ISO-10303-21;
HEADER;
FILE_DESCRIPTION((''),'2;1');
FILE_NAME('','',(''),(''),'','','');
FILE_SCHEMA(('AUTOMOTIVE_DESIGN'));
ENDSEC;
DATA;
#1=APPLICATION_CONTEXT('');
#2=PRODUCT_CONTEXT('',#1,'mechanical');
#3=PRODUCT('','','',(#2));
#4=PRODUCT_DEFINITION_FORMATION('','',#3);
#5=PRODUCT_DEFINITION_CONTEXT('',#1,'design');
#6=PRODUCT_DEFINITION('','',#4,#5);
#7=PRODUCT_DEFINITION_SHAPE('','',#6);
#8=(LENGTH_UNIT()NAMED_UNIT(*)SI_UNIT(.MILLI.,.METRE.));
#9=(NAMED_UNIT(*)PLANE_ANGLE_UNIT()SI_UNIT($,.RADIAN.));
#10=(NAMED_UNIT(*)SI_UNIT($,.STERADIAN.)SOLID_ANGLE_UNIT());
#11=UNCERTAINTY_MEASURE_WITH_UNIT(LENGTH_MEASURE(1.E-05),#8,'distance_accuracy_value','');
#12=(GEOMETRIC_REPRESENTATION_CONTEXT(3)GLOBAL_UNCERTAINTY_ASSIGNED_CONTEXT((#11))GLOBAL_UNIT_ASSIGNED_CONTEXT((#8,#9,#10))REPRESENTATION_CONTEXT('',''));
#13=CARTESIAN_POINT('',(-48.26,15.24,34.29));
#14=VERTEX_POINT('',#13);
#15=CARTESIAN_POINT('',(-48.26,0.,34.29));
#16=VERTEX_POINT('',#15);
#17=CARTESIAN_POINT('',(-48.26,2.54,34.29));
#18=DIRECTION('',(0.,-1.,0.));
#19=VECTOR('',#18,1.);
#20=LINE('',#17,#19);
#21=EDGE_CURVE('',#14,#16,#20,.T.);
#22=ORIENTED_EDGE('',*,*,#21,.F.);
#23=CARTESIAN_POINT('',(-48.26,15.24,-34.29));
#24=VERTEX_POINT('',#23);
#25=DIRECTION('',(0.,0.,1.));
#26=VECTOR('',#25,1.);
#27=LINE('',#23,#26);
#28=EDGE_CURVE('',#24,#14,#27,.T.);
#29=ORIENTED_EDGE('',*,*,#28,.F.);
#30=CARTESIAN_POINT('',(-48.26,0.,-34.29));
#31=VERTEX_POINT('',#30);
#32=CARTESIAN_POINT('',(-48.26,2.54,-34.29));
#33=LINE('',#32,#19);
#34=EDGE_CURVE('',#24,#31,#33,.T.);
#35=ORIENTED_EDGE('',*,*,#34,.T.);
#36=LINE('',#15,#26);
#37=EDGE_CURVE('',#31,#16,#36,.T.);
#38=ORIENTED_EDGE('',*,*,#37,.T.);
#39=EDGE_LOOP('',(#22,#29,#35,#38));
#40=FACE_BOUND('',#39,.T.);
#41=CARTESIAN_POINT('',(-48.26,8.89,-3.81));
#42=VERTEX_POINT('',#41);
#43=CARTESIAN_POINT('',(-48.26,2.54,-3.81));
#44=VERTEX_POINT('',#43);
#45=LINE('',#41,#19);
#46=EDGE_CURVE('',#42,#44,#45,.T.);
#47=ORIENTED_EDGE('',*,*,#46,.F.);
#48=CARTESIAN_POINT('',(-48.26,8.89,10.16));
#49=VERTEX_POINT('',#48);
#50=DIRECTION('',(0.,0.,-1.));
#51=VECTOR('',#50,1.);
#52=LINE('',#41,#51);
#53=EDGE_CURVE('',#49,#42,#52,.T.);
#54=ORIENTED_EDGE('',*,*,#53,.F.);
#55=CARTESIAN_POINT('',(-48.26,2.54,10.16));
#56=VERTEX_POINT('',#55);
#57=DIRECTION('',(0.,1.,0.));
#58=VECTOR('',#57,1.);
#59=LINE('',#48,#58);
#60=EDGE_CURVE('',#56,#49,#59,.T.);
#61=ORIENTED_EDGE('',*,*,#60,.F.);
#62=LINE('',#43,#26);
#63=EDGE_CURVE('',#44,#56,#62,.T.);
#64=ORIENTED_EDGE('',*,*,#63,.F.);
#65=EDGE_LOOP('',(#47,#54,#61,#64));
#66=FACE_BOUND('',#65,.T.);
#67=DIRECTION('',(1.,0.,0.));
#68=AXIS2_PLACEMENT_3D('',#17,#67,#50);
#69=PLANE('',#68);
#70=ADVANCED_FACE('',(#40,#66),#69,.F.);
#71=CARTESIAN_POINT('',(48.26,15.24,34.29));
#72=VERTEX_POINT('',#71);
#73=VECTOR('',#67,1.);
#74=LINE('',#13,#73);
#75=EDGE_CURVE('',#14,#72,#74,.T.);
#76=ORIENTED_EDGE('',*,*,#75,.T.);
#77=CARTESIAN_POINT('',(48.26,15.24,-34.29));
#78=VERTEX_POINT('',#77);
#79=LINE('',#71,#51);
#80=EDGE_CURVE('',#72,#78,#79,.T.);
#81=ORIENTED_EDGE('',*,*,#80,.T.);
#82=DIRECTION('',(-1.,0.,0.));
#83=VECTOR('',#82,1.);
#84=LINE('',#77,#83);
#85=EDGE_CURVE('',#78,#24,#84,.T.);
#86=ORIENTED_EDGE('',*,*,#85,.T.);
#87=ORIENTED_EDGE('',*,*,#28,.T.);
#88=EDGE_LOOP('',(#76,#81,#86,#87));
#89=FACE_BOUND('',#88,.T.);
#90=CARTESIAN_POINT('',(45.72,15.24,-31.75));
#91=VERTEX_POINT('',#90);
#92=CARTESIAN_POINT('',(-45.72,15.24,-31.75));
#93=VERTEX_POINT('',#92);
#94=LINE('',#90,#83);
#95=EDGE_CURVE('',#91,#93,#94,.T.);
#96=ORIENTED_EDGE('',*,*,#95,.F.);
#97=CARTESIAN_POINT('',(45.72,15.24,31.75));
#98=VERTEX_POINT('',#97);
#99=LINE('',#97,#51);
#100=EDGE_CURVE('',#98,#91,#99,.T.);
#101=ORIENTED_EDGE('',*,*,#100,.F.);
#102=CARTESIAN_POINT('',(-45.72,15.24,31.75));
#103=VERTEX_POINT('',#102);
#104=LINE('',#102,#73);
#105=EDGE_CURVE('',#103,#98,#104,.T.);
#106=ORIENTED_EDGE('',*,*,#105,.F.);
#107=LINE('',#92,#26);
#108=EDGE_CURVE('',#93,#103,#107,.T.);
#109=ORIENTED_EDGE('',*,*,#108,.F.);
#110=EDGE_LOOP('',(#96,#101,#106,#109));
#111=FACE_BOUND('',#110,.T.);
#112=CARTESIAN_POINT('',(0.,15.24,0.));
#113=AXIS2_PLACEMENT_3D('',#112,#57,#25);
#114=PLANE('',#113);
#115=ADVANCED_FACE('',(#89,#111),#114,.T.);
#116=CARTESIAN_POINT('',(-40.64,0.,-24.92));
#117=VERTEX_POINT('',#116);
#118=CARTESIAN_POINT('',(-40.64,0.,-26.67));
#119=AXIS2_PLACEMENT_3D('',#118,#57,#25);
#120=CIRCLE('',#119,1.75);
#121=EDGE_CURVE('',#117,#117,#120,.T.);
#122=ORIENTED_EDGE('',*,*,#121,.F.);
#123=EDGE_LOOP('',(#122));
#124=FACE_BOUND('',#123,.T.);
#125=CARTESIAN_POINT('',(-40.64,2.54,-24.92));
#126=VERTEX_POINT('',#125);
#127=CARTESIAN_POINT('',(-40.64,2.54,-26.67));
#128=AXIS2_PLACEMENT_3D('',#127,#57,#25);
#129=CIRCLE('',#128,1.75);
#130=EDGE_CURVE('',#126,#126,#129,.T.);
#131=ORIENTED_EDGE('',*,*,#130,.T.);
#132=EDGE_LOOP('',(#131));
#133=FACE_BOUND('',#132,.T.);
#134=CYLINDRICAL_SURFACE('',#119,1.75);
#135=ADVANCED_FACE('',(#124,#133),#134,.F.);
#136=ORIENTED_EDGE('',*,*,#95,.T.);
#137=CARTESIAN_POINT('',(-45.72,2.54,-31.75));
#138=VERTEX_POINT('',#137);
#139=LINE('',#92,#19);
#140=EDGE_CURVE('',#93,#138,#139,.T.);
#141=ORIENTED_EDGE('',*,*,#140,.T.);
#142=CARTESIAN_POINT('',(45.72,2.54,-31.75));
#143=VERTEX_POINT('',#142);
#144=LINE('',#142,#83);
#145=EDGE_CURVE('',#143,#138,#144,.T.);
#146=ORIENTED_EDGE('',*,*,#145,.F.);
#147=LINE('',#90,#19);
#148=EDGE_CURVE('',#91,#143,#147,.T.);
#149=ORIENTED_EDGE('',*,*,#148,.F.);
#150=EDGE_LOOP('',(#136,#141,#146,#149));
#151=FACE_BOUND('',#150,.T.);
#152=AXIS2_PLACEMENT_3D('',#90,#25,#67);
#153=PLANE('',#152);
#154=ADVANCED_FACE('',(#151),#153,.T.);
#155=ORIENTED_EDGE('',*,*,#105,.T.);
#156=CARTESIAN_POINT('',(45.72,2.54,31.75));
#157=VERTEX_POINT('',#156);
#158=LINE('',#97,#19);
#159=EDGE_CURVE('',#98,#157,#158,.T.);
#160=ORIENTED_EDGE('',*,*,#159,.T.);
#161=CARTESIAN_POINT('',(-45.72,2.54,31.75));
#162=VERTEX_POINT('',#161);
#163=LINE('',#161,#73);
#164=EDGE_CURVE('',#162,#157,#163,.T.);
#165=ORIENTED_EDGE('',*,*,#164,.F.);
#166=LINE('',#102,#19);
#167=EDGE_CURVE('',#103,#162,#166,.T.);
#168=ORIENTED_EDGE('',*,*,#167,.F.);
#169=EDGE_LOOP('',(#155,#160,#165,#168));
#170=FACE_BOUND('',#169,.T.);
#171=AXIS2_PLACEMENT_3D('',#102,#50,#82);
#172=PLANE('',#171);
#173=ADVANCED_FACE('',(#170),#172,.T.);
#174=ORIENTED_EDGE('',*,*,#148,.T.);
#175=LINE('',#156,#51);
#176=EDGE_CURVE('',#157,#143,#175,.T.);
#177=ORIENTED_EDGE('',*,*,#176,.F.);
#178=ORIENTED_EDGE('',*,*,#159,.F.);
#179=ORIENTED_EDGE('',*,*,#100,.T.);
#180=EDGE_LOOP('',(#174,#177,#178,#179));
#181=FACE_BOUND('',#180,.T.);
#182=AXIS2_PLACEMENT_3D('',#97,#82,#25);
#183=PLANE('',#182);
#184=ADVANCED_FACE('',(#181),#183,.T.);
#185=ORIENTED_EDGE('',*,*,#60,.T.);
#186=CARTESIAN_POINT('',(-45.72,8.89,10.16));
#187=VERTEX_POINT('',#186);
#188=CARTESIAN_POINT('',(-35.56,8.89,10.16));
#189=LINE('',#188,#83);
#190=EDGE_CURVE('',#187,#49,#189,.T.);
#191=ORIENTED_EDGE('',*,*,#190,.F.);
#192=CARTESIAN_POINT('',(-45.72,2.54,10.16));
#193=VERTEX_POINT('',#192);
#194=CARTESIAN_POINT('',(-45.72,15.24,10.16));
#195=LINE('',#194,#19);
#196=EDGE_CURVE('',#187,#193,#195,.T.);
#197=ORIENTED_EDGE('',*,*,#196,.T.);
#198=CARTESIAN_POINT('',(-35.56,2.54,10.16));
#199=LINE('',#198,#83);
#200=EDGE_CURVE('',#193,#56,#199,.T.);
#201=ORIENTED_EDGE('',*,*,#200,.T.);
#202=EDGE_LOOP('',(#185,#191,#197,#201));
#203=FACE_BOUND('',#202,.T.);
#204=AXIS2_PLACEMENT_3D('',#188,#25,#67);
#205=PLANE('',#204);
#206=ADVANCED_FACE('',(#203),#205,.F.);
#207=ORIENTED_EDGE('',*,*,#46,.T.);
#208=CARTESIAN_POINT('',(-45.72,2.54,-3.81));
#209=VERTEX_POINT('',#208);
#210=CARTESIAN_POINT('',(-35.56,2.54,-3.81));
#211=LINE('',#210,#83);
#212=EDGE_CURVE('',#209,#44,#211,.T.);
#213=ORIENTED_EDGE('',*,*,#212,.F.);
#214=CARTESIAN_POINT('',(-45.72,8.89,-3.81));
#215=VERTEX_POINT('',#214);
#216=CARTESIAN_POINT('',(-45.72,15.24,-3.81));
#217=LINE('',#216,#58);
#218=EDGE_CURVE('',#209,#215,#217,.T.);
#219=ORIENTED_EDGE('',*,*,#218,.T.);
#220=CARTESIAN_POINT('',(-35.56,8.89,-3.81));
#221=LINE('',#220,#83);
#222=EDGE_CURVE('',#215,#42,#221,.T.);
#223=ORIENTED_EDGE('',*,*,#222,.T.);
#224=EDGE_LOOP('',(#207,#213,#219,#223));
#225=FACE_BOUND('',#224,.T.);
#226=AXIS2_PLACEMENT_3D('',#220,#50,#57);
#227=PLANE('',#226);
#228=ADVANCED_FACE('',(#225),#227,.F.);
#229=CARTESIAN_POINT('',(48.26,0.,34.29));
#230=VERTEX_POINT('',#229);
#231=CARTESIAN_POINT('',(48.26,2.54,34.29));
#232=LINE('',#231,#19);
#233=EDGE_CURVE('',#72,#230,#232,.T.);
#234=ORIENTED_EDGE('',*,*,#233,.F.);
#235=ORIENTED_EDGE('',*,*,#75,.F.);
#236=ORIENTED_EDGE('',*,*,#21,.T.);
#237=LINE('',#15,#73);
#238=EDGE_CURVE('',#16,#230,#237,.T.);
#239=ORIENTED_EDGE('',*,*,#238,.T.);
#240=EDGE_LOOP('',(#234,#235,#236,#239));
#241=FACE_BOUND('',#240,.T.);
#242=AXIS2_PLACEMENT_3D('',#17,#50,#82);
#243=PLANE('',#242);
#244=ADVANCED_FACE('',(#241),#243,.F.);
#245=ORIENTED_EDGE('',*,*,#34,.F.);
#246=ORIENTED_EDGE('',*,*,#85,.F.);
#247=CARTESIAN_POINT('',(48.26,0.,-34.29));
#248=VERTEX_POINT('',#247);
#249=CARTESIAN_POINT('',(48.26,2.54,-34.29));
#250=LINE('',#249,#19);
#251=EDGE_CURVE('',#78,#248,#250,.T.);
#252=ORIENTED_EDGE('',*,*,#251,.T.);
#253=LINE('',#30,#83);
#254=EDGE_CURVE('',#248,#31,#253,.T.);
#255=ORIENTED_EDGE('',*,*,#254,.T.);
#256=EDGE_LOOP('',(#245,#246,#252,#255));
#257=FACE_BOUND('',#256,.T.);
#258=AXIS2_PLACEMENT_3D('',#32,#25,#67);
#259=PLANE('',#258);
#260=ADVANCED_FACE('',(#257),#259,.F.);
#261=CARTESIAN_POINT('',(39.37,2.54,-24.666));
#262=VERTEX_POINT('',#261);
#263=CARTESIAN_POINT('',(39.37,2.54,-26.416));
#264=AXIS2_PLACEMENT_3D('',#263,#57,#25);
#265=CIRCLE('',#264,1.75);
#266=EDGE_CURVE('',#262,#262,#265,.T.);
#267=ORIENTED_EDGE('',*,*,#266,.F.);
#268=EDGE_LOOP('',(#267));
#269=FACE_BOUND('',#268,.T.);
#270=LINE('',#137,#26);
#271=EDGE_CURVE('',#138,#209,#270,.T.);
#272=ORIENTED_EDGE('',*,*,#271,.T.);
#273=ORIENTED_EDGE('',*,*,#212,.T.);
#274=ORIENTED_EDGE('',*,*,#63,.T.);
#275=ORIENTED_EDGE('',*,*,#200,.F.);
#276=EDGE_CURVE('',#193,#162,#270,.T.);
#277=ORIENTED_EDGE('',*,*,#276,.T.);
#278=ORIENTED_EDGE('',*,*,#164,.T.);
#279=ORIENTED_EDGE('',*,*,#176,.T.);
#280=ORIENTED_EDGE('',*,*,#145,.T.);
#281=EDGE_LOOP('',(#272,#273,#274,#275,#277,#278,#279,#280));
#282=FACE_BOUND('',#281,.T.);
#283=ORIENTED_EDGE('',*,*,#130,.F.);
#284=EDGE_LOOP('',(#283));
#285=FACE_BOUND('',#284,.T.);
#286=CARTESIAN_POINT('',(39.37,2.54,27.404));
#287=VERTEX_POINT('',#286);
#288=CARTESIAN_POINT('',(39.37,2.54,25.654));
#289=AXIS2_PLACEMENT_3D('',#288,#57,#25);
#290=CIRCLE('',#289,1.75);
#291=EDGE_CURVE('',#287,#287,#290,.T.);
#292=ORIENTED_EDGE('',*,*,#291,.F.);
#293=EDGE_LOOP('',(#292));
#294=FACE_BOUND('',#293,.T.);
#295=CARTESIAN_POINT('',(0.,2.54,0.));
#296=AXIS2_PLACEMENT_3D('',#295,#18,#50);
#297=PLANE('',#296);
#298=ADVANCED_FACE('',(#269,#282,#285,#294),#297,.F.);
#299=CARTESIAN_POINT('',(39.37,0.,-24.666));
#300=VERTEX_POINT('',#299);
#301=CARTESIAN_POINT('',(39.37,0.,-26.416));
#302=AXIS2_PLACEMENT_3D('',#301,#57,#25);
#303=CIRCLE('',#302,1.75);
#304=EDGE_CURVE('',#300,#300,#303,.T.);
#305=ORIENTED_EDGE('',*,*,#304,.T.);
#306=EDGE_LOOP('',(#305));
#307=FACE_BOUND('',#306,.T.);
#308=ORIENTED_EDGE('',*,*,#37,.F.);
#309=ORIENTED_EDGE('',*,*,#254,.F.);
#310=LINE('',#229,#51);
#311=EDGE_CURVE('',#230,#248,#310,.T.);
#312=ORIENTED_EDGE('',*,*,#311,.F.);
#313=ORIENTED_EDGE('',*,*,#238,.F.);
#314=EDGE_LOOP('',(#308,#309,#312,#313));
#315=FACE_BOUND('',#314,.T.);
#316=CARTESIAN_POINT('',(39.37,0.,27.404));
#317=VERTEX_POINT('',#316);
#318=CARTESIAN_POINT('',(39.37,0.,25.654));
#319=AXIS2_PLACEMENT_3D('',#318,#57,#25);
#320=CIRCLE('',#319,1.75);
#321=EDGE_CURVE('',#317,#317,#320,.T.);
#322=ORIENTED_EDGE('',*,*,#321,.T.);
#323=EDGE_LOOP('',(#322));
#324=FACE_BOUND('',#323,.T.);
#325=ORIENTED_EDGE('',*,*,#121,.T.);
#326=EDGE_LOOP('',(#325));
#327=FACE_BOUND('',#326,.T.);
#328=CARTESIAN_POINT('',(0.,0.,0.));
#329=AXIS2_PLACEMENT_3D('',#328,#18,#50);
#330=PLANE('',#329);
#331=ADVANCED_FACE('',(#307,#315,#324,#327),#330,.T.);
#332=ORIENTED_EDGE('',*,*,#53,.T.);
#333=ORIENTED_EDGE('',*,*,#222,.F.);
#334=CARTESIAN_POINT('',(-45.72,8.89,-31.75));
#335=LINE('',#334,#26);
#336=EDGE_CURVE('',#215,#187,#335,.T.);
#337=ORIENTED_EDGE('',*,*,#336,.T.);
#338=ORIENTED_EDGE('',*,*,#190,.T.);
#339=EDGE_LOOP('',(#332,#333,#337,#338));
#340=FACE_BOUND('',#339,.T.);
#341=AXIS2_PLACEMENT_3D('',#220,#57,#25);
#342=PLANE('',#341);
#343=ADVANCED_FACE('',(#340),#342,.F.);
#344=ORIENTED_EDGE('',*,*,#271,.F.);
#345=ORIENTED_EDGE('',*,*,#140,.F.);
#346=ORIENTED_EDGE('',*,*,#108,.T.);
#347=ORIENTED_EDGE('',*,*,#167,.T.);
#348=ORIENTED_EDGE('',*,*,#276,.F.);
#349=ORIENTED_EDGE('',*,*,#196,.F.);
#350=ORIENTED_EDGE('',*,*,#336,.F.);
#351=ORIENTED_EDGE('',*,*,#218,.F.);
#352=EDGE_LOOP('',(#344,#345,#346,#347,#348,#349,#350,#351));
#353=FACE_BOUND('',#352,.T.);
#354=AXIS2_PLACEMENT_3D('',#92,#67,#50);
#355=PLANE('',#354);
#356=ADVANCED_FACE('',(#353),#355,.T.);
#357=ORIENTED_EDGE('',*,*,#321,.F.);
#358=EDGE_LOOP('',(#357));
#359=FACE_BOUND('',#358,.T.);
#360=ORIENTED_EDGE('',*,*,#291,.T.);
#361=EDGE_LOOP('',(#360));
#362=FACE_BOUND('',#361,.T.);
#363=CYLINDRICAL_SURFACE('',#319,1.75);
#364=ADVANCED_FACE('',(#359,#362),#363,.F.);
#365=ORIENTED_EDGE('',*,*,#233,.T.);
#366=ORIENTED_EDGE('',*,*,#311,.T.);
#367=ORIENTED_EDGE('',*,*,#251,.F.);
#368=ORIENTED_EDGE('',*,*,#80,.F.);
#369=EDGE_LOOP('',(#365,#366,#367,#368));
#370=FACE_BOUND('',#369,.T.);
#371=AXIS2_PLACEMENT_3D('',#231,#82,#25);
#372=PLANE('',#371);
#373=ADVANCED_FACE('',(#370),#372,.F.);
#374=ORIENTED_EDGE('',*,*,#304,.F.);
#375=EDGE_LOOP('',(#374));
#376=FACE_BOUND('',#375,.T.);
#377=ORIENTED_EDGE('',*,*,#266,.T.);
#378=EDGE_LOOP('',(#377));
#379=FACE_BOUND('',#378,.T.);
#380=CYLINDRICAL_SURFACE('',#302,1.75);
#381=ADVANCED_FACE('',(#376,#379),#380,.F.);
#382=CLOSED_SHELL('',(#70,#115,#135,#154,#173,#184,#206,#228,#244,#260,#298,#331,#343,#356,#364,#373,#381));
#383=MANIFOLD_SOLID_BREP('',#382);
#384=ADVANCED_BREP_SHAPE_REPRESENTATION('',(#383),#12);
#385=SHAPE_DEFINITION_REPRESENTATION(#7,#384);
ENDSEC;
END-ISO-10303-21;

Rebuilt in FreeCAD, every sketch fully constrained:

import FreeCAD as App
import Part
import Sketcher

V = App.Vector
Q = App.Units.Quantity

doc = App.newDocument("Part")
body = doc.addObject("PartDesign::Body", "Body")

# Sketch on XZ plane
sketch1 = body.newObject("Sketcher::SketchObject", "Sketch")
sketch1.AttachmentSupport = (doc.getObject("XZ_Plane"), [""])
sketch1.MapMode = "FlatFace"
sketch1.addGeometry([
    Part.LineSegment(V(-48, -34, 0), V(-48, 34, 0)),
    Part.LineSegment(V(-48, 34, 0), V(48, 34, 0)),
    Part.LineSegment(V(48, 34, 0), V(48, -34, 0)),
    Part.LineSegment(V(48, -34, 0), V(-48, -34, 0)),
], False)
sketch1.addConstraint([
    Sketcher.Constraint("Coincident", 0, 2, 1, 1),
    Sketcher.Constraint("Coincident", 1, 2, 2, 1),
    Sketcher.Constraint("Coincident", 2, 2, 3, 1),
    Sketcher.Constraint("Coincident", 3, 2, 0, 1),
    Sketcher.Constraint("Vertical", 0),
    Sketcher.Constraint("Horizontal", 1),
    Sketcher.Constraint("Vertical", 2),
    Sketcher.Constraint("Horizontal", 3),
    Sketcher.Constraint("Symmetric", 0, 2, 2, 2, -1, 1),
    Sketcher.Constraint("DistanceX", 1, 1, 1, 2, Q("3.8 in")),
    Sketcher.Constraint("DistanceY", 0, 1, 0, 2, Q("2.7 in")),
])
pad1 = body.newObject("PartDesign::Pad", "Pad")
pad1.Profile = sketch1
pad1.Length = Q("0.1 in")
pad1.Reversed = True

# Sketch on XZ plane
sketch2 = body.newObject("Sketcher::SketchObject", "Sketch001")
sketch2.AttachmentSupport = (doc.getObject("XZ_Plane"), [""])
sketch2.MapMode = "FlatFace"
sketch2.AttachmentOffset = App.Placement(V(0, 0, -0.1 * 25.4), App.Rotation())
sketch2.addGeometry([
    Part.LineSegment(V(-48, -34, 0), V(-48, 34, 0)),  # 0
    Part.LineSegment(V(-48, 34, 0), V(48, 34, 0)),  # 1
    Part.LineSegment(V(48, 34, 0), V(48, -34, 0)),  # 2
    Part.LineSegment(V(48, -34, 0), V(-48, -34, 0)),  # 3
    Part.LineSegment(V(46, 32, 0), V(-46, 32, 0)),  # 4
    Part.LineSegment(V(-46, 32, 0), V(-46, -32, 0)),  # 5
    Part.LineSegment(V(-46, -32, 0), V(46, -32, 0)),  # 6
    Part.LineSegment(V(46, -32, 0), V(46, 32, 0)),  # 7
], False)
sketch2.addConstraint([
    Sketcher.Constraint("Coincident", 0, 2, 1, 1),
    Sketcher.Constraint("Coincident", 1, 2, 2, 1),
    Sketcher.Constraint("Coincident", 2, 2, 3, 1),
    Sketcher.Constraint("Coincident", 3, 2, 0, 1),
    Sketcher.Constraint("Coincident", 4, 2, 5, 1),
    Sketcher.Constraint("Coincident", 5, 2, 6, 1),
    Sketcher.Constraint("Coincident", 6, 2, 7, 1),
    Sketcher.Constraint("Coincident", 7, 2, 4, 1),
    Sketcher.Constraint("Vertical", 0),
    Sketcher.Constraint("Horizontal", 1),
    Sketcher.Constraint("Vertical", 2),
    Sketcher.Constraint("Horizontal", 3),
    Sketcher.Constraint("Horizontal", 4),
    Sketcher.Constraint("Vertical", 5),
    Sketcher.Constraint("Horizontal", 6),
    Sketcher.Constraint("Vertical", 7),
    Sketcher.Constraint("Symmetric", 0, 2, 2, 2, -1, 1),
    Sketcher.Constraint("Symmetric", 4, 2, 6, 2, -1, 1),
    Sketcher.Constraint("DistanceX", 1, 1, 1, 2, Q("3.8 in")),
    Sketcher.Constraint("DistanceX", 4, 2, 4, 1, Q("3.6 in")),
    Sketcher.Constraint("DistanceY", 0, 1, 0, 2, Q("2.7 in")),
    Sketcher.Constraint("DistanceY", 5, 2, 5, 1, Q("2.5 in")),
])
pad2 = body.newObject("PartDesign::Pad", "Pad001")
pad2.Profile = sketch2
pad2.Length = Q("0.5 in")
pad2.Reversed = True

# Sketch on YZ plane
sketch3 = body.newObject("Sketcher::SketchObject", "Sketch002")
sketch3.AttachmentSupport = (doc.getObject("YZ_Plane"), [""])
sketch3.MapMode = "FlatFace"
sketch3.AttachmentOffset = App.Placement(V(0, 0, -1.9 * 25.4), App.Rotation())
sketch3.addGeometry([
    Part.LineSegment(V(9, -4, 0), V(3, -4, 0)),
    Part.LineSegment(V(3, -4, 0), V(3, 10, 0)),
    Part.LineSegment(V(3, 10, 0), V(9, 10, 0)),
    Part.LineSegment(V(9, 10, 0), V(9, -4, 0)),
], False)
sketch3.addConstraint([
    Sketcher.Constraint("Coincident", 0, 2, 1, 1),
    Sketcher.Constraint("Coincident", 1, 2, 2, 1),
    Sketcher.Constraint("Coincident", 2, 2, 3, 1),
    Sketcher.Constraint("Coincident", 3, 2, 0, 1),
    Sketcher.Constraint("Horizontal", 0),
    Sketcher.Constraint("Vertical", 1),
    Sketcher.Constraint("Horizontal", 2),
    Sketcher.Constraint("Vertical", 3),
    Sketcher.Constraint("DistanceX", 0, 2, 0, 1, Q("0.25 in")),
    Sketcher.Constraint("DistanceY", 1, 1, 1, 2, Q("0.55 in")),
    Sketcher.Constraint("DistanceX", -1, 1, 0, 2, Q("0.1 in")),
    Sketcher.Constraint("DistanceY", -1, 1, 1, 2, Q("0.4 in")),
])
pocket1 = body.newObject("PartDesign::Pocket", "Pocket")
pocket1.Profile = sketch3
pocket1.Length = Q("0.5 in")
pocket1.Reversed = True

# Sketch on XZ plane
sketch4 = body.newObject("Sketcher::SketchObject", "Sketch003")
sketch4.AttachmentSupport = (doc.getObject("XZ_Plane"), [""])
sketch4.MapMode = "FlatFace"
sketch4.AttachmentOffset = App.Placement(V(0, 0, -0.1 * 25.4), App.Rotation())
sketch4.addGeometry([
    Part.Circle(V(-40.6, -26.7, 0), V(0, 0, 1), 1.8),
    Part.Circle(V(39.4, -26.4, 0), V(0, 0, 1), 1.8),
    Part.Circle(V(39.4, 25.7, 0), V(0, 0, 1), 1.8),
], False)
sketch4.addConstraint([
    Sketcher.Constraint("Equal", 0, 1),
    Sketcher.Constraint("Equal", 1, 2),
    Sketcher.Constraint("Vertical", 1, 3, 2, 3),
    Sketcher.Constraint("DistanceX", 0, 3, -1, 1, Q("1.6 in")),
    Sketcher.Constraint("Diameter", 0, Q("3.5 mm")),
    Sketcher.Constraint("DistanceY", 0, 3, -1, 1, Q("1.05 in")),
    Sketcher.Constraint("DistanceX", -1, 1, 1, 3, Q("1.55 in")),
    Sketcher.Constraint("DistanceY", 1, 3, -1, 1, Q("1.04 in")),
    Sketcher.Constraint("DistanceY", -1, 1, 2, 3, Q("1.01 in")),
])
pocket2 = body.newObject("PartDesign::Pocket", "Pocket001")
pocket2.Profile = sketch4
pocket2.Length = Q("0.1 in")
pocket2.Reversed = True

doc.recompute()
